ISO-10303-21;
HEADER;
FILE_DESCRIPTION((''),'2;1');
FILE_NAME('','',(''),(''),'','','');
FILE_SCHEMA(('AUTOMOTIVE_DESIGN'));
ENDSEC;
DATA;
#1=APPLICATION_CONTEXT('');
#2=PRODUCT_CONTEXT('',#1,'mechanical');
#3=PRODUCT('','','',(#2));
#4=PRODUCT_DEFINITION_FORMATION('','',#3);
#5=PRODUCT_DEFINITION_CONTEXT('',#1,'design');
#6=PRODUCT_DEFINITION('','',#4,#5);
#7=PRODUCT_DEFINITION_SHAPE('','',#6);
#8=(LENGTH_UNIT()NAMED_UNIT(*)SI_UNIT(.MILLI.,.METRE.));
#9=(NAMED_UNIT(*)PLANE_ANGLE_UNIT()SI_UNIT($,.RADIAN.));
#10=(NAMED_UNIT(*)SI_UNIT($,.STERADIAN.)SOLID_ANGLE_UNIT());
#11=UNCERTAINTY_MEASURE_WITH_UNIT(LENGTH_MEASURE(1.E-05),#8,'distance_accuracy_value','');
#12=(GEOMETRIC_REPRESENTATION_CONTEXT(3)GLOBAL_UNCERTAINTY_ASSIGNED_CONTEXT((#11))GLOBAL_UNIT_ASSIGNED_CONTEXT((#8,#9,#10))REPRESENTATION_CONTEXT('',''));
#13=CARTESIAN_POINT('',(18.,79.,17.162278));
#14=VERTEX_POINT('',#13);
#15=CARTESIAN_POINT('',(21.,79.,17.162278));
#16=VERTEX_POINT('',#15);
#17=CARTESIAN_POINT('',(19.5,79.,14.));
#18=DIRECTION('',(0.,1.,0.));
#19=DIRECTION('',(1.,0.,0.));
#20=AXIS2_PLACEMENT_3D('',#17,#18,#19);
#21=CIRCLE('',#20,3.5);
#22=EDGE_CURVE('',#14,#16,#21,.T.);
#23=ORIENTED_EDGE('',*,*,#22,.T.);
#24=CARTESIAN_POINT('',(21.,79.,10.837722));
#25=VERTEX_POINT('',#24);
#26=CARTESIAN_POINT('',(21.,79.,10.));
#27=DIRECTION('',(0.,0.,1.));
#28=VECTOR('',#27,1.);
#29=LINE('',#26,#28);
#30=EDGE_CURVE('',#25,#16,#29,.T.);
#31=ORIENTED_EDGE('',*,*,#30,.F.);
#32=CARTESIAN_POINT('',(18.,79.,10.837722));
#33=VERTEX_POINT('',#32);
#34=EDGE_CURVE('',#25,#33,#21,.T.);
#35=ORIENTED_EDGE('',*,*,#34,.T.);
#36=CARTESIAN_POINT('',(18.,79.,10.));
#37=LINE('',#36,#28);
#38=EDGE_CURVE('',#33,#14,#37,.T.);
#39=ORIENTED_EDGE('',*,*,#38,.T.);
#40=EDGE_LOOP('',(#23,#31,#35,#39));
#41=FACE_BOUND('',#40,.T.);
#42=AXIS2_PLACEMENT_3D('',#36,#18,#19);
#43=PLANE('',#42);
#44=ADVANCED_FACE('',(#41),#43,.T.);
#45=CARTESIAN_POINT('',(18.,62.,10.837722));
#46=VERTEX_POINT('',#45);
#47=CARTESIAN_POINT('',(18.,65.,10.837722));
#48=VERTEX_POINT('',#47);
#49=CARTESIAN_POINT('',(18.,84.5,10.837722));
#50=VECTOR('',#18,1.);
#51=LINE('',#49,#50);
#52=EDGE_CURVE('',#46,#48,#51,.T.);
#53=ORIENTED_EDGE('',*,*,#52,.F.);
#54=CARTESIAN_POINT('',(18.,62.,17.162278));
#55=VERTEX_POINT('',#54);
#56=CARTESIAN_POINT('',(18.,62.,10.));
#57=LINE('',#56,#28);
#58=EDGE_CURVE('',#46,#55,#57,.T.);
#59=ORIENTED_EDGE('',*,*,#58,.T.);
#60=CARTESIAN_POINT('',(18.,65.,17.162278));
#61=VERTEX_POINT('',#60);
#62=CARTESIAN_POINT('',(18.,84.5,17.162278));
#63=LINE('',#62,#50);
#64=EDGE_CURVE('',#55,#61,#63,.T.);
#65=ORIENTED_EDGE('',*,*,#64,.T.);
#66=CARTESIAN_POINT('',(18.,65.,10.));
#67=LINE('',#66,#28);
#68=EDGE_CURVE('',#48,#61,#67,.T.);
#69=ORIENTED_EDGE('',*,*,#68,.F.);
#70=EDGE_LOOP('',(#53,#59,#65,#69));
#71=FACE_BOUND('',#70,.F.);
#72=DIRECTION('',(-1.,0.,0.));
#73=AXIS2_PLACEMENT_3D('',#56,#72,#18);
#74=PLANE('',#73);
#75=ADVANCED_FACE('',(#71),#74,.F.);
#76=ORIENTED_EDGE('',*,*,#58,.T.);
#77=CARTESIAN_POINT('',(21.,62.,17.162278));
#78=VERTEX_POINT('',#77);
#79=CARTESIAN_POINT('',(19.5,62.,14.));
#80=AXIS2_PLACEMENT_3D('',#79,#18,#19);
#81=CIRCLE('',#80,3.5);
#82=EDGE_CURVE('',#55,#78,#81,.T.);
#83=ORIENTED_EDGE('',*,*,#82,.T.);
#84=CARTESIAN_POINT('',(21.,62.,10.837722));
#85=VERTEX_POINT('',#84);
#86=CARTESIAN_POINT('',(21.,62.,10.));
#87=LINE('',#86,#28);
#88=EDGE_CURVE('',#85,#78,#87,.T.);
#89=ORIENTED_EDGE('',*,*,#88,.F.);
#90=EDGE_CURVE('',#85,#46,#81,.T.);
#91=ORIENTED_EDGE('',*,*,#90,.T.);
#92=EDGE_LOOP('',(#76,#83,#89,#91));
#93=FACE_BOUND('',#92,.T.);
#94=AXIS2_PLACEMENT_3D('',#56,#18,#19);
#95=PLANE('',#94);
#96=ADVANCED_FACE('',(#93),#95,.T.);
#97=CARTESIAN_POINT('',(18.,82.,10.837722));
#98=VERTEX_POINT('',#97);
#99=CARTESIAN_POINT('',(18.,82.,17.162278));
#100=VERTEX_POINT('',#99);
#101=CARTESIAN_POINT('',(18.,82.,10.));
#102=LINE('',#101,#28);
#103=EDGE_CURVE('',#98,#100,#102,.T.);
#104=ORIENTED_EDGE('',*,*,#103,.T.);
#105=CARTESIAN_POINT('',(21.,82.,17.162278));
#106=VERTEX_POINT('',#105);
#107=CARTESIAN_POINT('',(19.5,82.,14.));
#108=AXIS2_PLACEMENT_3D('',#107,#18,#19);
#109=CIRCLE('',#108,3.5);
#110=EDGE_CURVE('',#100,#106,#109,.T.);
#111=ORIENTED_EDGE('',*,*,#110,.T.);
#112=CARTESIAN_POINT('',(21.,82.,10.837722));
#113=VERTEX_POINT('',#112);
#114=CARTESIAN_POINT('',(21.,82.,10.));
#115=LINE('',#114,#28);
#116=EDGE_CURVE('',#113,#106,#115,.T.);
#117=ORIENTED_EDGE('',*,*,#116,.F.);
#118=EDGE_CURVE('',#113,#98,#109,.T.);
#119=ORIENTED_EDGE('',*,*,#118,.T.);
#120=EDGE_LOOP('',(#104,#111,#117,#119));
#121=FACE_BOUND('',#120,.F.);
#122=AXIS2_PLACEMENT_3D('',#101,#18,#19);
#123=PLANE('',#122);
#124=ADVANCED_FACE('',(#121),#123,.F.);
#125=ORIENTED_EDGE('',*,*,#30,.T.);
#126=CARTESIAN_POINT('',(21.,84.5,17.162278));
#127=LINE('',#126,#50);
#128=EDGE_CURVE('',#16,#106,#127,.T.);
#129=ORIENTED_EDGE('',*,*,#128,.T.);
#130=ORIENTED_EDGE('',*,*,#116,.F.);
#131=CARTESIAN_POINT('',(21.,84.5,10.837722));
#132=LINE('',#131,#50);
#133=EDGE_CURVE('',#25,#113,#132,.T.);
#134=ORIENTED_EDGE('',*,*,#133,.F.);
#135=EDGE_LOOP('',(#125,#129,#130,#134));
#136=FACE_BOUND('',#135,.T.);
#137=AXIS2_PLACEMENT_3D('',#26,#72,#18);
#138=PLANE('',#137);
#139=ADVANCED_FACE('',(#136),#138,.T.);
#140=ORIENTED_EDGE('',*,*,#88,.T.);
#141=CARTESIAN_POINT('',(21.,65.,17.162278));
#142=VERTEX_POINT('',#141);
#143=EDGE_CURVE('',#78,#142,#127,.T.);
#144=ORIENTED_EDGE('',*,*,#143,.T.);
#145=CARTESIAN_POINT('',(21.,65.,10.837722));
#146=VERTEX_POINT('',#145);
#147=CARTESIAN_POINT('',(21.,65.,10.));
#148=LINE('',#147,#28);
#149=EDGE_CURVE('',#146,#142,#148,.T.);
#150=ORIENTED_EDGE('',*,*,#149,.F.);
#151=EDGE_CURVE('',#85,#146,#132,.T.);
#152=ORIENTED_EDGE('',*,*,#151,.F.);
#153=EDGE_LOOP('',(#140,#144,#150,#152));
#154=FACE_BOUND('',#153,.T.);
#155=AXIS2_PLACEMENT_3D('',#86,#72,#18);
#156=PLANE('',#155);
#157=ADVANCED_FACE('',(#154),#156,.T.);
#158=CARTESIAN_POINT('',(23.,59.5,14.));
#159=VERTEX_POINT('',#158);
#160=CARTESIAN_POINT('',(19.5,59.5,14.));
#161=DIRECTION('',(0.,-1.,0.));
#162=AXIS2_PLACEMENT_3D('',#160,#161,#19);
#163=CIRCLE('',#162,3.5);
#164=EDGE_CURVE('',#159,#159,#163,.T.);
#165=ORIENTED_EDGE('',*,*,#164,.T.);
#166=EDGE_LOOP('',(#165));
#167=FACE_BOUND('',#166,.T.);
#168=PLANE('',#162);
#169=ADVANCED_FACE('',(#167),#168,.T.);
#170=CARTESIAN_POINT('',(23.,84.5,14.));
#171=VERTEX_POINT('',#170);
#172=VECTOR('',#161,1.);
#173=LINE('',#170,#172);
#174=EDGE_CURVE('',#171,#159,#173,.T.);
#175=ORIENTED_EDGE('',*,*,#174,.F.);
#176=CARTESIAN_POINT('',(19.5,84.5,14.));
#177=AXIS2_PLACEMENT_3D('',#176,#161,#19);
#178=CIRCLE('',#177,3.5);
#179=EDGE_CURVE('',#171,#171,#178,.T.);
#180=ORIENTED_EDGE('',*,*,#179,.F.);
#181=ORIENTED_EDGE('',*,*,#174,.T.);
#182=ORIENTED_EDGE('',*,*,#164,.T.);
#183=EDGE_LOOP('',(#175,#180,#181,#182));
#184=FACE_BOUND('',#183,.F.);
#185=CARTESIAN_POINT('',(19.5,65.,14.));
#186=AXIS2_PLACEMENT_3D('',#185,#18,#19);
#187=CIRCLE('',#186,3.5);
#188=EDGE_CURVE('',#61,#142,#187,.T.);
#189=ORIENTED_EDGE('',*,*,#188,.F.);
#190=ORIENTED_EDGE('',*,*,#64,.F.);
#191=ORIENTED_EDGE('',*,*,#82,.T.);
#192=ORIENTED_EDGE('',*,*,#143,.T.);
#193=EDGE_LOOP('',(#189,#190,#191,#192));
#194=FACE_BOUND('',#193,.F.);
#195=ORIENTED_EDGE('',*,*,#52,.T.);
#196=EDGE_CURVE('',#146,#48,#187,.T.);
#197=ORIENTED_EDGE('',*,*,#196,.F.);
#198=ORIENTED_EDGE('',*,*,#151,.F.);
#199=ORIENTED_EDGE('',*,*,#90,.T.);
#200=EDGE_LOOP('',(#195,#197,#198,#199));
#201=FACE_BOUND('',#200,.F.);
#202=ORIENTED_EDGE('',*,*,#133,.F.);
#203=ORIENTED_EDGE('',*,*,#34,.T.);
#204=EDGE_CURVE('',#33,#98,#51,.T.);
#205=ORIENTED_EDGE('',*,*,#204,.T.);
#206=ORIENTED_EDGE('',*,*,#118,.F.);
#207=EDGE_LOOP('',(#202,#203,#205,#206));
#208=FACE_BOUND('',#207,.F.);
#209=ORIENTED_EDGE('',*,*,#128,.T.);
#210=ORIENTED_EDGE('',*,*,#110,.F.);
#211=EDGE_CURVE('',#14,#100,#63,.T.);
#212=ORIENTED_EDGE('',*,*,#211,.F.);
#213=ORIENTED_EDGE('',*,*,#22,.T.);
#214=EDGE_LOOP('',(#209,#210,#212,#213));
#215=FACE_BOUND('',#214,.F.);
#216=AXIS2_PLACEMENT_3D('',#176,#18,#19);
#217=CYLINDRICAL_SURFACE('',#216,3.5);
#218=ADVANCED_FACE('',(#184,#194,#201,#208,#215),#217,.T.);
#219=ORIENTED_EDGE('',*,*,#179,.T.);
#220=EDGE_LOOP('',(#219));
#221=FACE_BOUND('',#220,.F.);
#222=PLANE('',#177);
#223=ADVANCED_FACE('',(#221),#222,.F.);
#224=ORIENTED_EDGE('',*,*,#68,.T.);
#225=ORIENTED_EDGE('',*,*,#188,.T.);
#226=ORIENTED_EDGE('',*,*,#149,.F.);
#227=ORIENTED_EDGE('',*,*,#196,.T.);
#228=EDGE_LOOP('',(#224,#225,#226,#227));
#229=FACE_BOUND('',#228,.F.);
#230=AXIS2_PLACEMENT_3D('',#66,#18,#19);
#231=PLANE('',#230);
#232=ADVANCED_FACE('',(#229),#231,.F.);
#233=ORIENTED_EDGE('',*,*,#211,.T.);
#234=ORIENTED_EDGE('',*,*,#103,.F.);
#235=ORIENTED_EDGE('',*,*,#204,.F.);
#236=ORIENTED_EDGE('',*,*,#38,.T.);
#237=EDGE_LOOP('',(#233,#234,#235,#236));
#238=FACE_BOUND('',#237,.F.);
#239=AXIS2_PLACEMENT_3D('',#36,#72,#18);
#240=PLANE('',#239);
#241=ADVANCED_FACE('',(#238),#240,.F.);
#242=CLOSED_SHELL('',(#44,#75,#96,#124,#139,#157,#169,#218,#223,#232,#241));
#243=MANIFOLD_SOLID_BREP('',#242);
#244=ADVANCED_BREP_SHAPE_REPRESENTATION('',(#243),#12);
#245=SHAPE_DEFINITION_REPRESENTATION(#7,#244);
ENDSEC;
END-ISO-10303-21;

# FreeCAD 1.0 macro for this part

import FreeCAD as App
import Part
import Sketcher


def add_polygon(sketch, points):
    """Adds a closed chain of lines whose ends are joined by coincident constraints."""
    first, n = sketch.GeometryCount, len(points)
    for a, b in zip(points, points[1:] + points[:1]):
        sketch.addGeometry(Part.LineSegment(App.Vector(*a, 0), App.Vector(*b, 0)), False)
    for i in range(n):
        sketch.addConstraint(Sketcher.Constraint("Coincident", first + i, 2, first + (i + 1) % n, 1))

doc = App.newDocument("Part")
body = doc.addObject("PartDesign::Body", "Body")

sketch1 = body.newObject("Sketcher::SketchObject", "Sketch")
sketch1.AttachmentSupport = (doc.getObject("XY_Plane"), [""])
sketch1.MapMode = "FlatFace"
sketch1.AttachmentOffset = App.Placement(App.Vector(0, 0, 10), App.Rotation())
add_polygon(sketch1, [(18, 65), (18, 62), (21, 62), (21, 65)])
sketch1.addConstraint([
    Sketcher.Constraint("Vertical", 0),
    Sketcher.Constraint("Horizontal", 1),
    Sketcher.Constraint("Vertical", 2),
    Sketcher.Constraint("Horizontal", 3),
    Sketcher.Constraint("Equal", 3, 0),
    Sketcher.Constraint("DistanceX", 1, 1, 1, 2, 3.0),
    Sketcher.Constraint("DistanceX", -1, 1, 0, 2, 18.0),
    Sketcher.Constraint("DistanceY", -1, 1, 0, 2, 62.0),
])
pad1 = body.newObject("PartDesign::Pad", "Pad")
pad1.Profile = sketch1
pad1.Length = 8
body2 = doc.addObject("PartDesign::Body", "Body001")
body2.AllowCompound = True

sketch2 = body2.newObject("Sketcher::SketchObject", "Sketch001")
sketch2.AttachmentSupport = (doc.getObject("XY_Plane001"), [""])
sketch2.MapMode = "FlatFace"
sketch2.AttachmentOffset = App.Placement(App.Vector(0, 0, 10), App.Rotation())
add_polygon(sketch2, [(18, 82), (18, 79), (21, 79), (21, 82)])
sketch2.addConstraint([
    Sketcher.Constraint("Vertical", 0),
    Sketcher.Constraint("Horizontal", 1),
    Sketcher.Constraint("Vertical", 2),
    Sketcher.Constraint("Horizontal", 3),
    Sketcher.Constraint("Equal", 3, 0),
    Sketcher.Constraint("DistanceX", 1, 1, 1, 2, 3.0),
    Sketcher.Constraint("DistanceX", -1, 1, 0, 2, 18.0),
    Sketcher.Constraint("DistanceY", -1, 1, 0, 2, 79.0),
])
pad2 = body2.newObject("PartDesign::Pad", "Pad001")
pad2.Profile = sketch2
pad2.Length = 8
doc.recompute()

boolean = body2.newObject("PartDesign::Boolean", "Boolean")
boolean.Type = "Fuse"
boolean.addObjects([body])
body3 = doc.addObject("PartDesign::Body", "Body002")

sketch3 = body3.newObject("Sketcher::SketchObject", "Sketch002")
sketch3.AttachmentSupport = (doc.getObject("XZ_Plane002"), [""])
sketch3.MapMode = "FlatFace"
sketch3.AttachmentOffset = App.Placement(App.Vector(0, 0, -84.5), App.Rotation())
sketch3.addGeometry(Part.Circle(App.Vector(19.5, 14, 0), App.Vector(0, 0, 1), 3.5), False)
sketch3.addConstraint([
    Sketcher.Constraint("Diameter", 0, 7.0),
    Sketcher.Constraint("DistanceY", -1, 1, 0, 3, 14.0),
    Sketcher.Constraint("DistanceX", -1, 1, 0, 3, 19.5),
])
pad3 = body3.newObject("PartDesign::Pad", "Pad002")
pad3.Profile = sketch3
pad3.Length = 25
doc.recompute()

boolean2 = body3.newObject("PartDesign::Boolean", "Boolean001")
boolean2.Type = "Cut"
boolean2.addObjects([body2])

doc.recompute()
